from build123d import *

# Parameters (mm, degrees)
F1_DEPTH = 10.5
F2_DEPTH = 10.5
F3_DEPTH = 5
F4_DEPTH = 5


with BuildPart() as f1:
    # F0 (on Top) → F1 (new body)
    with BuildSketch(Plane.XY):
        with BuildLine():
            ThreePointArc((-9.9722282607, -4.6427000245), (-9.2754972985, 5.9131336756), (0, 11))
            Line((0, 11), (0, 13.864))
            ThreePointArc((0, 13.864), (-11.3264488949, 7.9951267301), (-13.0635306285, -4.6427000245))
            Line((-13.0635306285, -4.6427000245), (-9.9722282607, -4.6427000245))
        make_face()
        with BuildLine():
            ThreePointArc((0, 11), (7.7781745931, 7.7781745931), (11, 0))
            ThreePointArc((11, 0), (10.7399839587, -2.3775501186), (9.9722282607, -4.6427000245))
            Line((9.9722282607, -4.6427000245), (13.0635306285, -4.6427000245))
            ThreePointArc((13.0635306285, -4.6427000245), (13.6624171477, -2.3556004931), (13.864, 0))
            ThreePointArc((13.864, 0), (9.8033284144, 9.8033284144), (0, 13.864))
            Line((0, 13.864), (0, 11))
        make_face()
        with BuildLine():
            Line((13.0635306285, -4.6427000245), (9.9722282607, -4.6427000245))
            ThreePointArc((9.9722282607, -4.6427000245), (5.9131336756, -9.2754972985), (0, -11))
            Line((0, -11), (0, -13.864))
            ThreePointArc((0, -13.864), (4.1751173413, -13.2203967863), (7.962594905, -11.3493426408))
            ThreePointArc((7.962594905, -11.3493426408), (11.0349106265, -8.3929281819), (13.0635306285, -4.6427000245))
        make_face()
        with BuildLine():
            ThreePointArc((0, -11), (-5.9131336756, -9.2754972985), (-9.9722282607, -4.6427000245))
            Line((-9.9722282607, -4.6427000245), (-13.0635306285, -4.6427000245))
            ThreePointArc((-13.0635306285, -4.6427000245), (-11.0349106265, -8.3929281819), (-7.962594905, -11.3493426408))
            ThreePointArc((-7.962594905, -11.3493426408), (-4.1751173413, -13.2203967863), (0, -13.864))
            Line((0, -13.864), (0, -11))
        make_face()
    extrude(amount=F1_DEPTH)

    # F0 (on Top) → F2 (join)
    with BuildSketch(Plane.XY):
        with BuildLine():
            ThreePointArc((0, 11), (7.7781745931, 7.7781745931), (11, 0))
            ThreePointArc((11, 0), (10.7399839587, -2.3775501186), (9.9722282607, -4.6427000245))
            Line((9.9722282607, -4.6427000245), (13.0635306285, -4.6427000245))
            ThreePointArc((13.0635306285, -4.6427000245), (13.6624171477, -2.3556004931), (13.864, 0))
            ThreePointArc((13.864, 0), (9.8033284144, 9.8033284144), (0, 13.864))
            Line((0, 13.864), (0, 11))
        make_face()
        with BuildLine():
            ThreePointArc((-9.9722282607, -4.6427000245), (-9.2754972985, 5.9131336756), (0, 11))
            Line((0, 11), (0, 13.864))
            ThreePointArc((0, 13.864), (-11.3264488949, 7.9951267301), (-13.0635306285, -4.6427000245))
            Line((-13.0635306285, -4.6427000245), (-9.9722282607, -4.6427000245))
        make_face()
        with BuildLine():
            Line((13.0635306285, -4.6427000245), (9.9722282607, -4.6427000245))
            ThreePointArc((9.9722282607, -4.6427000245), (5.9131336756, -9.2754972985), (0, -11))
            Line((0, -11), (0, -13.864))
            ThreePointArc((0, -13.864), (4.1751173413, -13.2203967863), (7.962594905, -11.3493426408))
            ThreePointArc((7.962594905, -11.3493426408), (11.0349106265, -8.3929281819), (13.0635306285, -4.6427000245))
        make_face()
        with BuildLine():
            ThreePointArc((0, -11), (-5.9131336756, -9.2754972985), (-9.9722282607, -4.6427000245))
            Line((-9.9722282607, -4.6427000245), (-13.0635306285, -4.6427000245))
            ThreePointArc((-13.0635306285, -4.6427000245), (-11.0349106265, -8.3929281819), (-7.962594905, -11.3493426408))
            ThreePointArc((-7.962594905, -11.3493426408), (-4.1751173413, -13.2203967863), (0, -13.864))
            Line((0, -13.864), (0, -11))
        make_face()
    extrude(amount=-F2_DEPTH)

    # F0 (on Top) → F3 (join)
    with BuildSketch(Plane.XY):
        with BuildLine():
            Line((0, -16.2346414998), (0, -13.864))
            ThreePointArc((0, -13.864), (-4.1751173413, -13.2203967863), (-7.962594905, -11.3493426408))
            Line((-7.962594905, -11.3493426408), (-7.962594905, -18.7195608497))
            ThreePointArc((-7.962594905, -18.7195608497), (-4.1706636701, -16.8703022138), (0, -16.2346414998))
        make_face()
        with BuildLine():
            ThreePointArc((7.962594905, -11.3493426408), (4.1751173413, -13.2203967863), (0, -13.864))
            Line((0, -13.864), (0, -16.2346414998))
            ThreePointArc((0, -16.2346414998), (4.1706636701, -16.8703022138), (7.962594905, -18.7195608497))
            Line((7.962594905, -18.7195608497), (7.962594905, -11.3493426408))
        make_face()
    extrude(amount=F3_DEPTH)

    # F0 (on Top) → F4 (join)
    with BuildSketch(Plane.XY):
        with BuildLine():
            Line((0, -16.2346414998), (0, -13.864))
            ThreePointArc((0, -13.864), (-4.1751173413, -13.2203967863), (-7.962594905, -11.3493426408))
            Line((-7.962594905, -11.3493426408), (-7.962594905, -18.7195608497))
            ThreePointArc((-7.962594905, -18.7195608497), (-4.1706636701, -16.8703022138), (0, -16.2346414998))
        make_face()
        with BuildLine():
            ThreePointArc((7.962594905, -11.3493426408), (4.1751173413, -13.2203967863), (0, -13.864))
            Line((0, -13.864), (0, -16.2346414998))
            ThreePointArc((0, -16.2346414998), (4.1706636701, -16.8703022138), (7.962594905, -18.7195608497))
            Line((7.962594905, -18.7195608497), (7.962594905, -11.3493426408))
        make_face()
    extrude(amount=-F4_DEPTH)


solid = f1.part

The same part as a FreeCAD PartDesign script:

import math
import FreeCAD as App
import Part
import Sketcher

V = App.Vector
Q = App.Units.Quantity

doc = App.newDocument("Part")
body = doc.addObject("PartDesign::Body", "Body")

sketch1 = body.newObject("Sketcher::SketchObject", "Sketch")
sketch1.AttachmentSupport = (doc.getObject("XY_Plane"), [""])
sketch1.MapMode = "FlatFace"
sketch1.addGeometry([
    Part.ArcOfCircle(Part.Circle(V(0, 0, 0), V(0, 0, 1), 13.9), math.radians(-90), math.radians(-55)),
    Part.ArcOfCircle(Part.Circle(V(0, 0, 0), V(0, 0, 1), 13.9), math.radians(-55), math.radians(-20)),
    Part.ArcOfCircle(Part.Circle(V(0, 0, 0), V(0, 0, 1), 13.9), math.radians(-19.56), math.radians(0)),
    Part.ArcOfCircle(Part.Circle(V(0, 0, 0), V(0, 0, 1), 13.9), math.radians(0), math.radians(90)),
    Part.ArcOfCircle(Part.Circle(V(0, 0, 0), V(0, 0, 1), 13.9), math.radians(90), math.radians(200)),
    Part.ArcOfCircle(Part.Circle(V(0, 0, 0), V(0, 0, 1), 13.9), math.radians(-160), math.radians(-125)),
    Part.ArcOfCircle(Part.Circle(V(0, 0, 0), V(0, 0, 1), 13.9), math.radians(-125), math.radians(-90)),
    Part.ArcOfCircle(Part.Circle(V(0, 0, 0), V(0, 0, 1), 11), math.radians(90), math.radians(205)),
    Part.ArcOfCircle(Part.Circle(V(0, 0, 0), V(0, 0, 1), 11), math.radians(0), math.radians(90)),
    Part.ArcOfCircle(Part.Circle(V(0, 0, 0), V(0, 0, 1), 11), math.radians(-25), math.radians(0)),
    Part.ArcOfCircle(Part.Circle(V(0, 0, 0), V(0, 0, 1), 11), math.radians(-90), math.radians(-25)),
    Part.ArcOfCircle(Part.Circle(V(0, 0, 0), V(0, 0, 1), 11), math.radians(-155), math.radians(-90)),
], False)
sketch1.addConstraint([
    Sketcher.Constraint("Tangent", 0, 2, 1, 1),
    Sketcher.Constraint("Tangent", 1, 2, 2, 1),
    Sketcher.Constraint("Tangent", 2, 2, 3, 1),
    Sketcher.Constraint("Tangent", 3, 2, 4, 1),
    Sketcher.Constraint("Tangent", 4, 2, 5, 1),
    Sketcher.Constraint("Tangent", 5, 2, 6, 1),
    Sketcher.Constraint("Tangent", 6, 2, 0, 1),
    Sketcher.Constraint("Tangent", 7, 1, 8, 2),
    Sketcher.Constraint("Tangent", 8, 1, 9, 2),
    Sketcher.Constraint("Tangent", 9, 1, 10, 2),
    Sketcher.Constraint("Tangent", 10, 1, 11, 2),
    Sketcher.Constraint("Tangent", 11, 1, 7, 2),
    Sketcher.Constraint("Coincident", 0, 3, -1, 1),
    Sketcher.Constraint("Coincident", 2, 3, -1, 1),
    Sketcher.Constraint("Coincident", 4, 3, -1, 1),
    Sketcher.Constraint("Coincident", 7, 3, -1, 1),
    Sketcher.Constraint("Coincident", 9, 3, -1, 1),
    Sketcher.Constraint("PointOnObject", 2, 2, -1),
    Sketcher.Constraint("PointOnObject", 3, 2, -2),
    Sketcher.Constraint("PointOnObject", 6, 2, -2),
    Sketcher.Constraint("PointOnObject", 7, 1, -2),
    Sketcher.Constraint("PointOnObject", 8, 1, -1),
    Sketcher.Constraint("PointOnObject", 10, 1, -2),
    Sketcher.Constraint("Horizontal", 1, 2, 4, 2),
    Sketcher.Constraint("Horizontal", 0, 2, 5, 2),
    Sketcher.Constraint("Horizontal", 4, 2, 9, 1),
    Sketcher.Constraint("Horizontal", 9, 1, 11, 1),
    Sketcher.Constraint("Radius", 7, Q("11 mm")),
    Sketcher.Constraint("Radius", 0, Q("13.864 mm")),
    Sketcher.Constraint("DistanceY", 1, 2, -1, 1, Q("4.6427 mm")),
    Sketcher.Constraint("DistanceX", -1, 1, 0, 2, Q("7.962595 mm")),
])
pad1 = body.newObject("PartDesign::Pad", "Pad")
pad1.Profile = sketch1
pad1.Length = 10.5

sketch2 = body.newObject("Sketcher::SketchObject", "Sketch001")
sketch2.AttachmentSupport = (doc.getObject("XY_Plane"), [""])
sketch2.MapMode = "FlatFace"
sketch2.addGeometry([
    Part.ArcOfCircle(Part.Circle(V(0, 0, 0), V(0, 0, 1), 13.9), math.radians(-90), math.radians(-55)),
    Part.ArcOfCircle(Part.Circle(V(0, 0, 0), V(0, 0, 1), 13.9), math.radians(-55), math.radians(-20)),
    Part.ArcOfCircle(Part.Circle(V(0, 0, 0), V(0, 0, 1), 13.9), math.radians(-19.56), math.radians(0)),
    Part.ArcOfCircle(Part.Circle(V(0, 0, 0), V(0, 0, 1), 13.9), math.radians(0), math.radians(90)),
    Part.ArcOfCircle(Part.Circle(V(0, 0, 0), V(0, 0, 1), 13.9), math.radians(90), math.radians(200)),
    Part.ArcOfCircle(Part.Circle(V(0, 0, 0), V(0, 0, 1), 13.9), math.radians(-160), math.radians(-125)),
    Part.ArcOfCircle(Part.Circle(V(0, 0, 0), V(0, 0, 1), 13.9), math.radians(-125), math.radians(-90)),
    Part.ArcOfCircle(Part.Circle(V(0, 0, 0), V(0, 0, 1), 11), math.radians(0), math.radians(90)),
    Part.ArcOfCircle(Part.Circle(V(0, 0, 0), V(0, 0, 1), 11), math.radians(-25), math.radians(0)),
    Part.ArcOfCircle(Part.Circle(V(0, 0, 0), V(0, 0, 1), 11), math.radians(-90), math.radians(-25)),
    Part.ArcOfCircle(Part.Circle(V(0, 0, 0), V(0, 0, 1), 11), math.radians(-155), math.radians(-90)),
    Part.ArcOfCircle(Part.Circle(V(0, 0, 0), V(0, 0, 1), 11), math.radians(90), math.radians(205)),
], False)
sketch2.addConstraint([
    Sketcher.Constraint("Tangent", 0, 2, 1, 1),
    Sketcher.Constraint("Tangent", 1, 2, 2, 1),
    Sketcher.Constraint("Tangent", 2, 2, 3, 1),
    Sketcher.Constraint("Tangent", 3, 2, 4, 1),
    Sketcher.Constraint("Tangent", 4, 2, 5, 1),
    Sketcher.Constraint("Tangent", 5, 2, 6, 1),
    Sketcher.Constraint("Tangent", 6, 2, 0, 1),
    Sketcher.Constraint("Tangent", 7, 1, 8, 2),
    Sketcher.Constraint("Tangent", 8, 1, 9, 2),
    Sketcher.Constraint("Tangent", 9, 1, 10, 2),
    Sketcher.Constraint("Tangent", 10, 1, 11, 2),
    Sketcher.Constraint("Tangent", 11, 1, 7, 2),
    Sketcher.Constraint("Coincident", 0, 3, -1, 1),
    Sketcher.Constraint("Coincident", 2, 3, -1, 1),
    Sketcher.Constraint("Coincident", 4, 3, -1, 1),
    Sketcher.Constraint("Coincident", 7, 3, -1, 1),
    Sketcher.Constraint("Coincident", 9, 3, -1, 1),
    Sketcher.Constraint("PointOnObject", 2, 2, -1),
    Sketcher.Constraint("PointOnObject", 3, 2, -2),
    Sketcher.Constraint("PointOnObject", 6, 2, -2),
    Sketcher.Constraint("PointOnObject", 7, 1, -1),
    Sketcher.Constraint("PointOnObject", 9, 1, -2),
    Sketcher.Constraint("PointOnObject", 11, 1, -2),
    Sketcher.Constraint("Horizontal", 1, 2, 4, 2),
    Sketcher.Constraint("Horizontal", 0, 2, 5, 2),
    Sketcher.Constraint("Horizontal", 4, 2, 8, 1),
    Sketcher.Constraint("Horizontal", 8, 1, 10, 1),
    Sketcher.Constraint("Radius", 7, Q("11 mm")),
    Sketcher.Constraint("Radius", 0, Q("13.864 mm")),
    Sketcher.Constraint("DistanceY", 1, 2, -1, 1, Q("4.6427 mm")),
    Sketcher.Constraint("DistanceX", -1, 1, 0, 2, Q("7.962595 mm")),
])
pad2 = body.newObject("PartDesign::Pad", "Pad001")
pad2.Profile = sketch2
pad2.Length = 10.5
pad2.Reversed = True

sketch3 = body.newObject("Sketcher::SketchObject", "Sketch002")
sketch3.AttachmentSupport = (doc.getObject("XY_Plane"), [""])
sketch3.MapMode = "FlatFace"
sketch3.addGeometry([
    Part.ArcOfCircle(Part.Circle(V(0, 0, 0), V(0, 0, 1), 14), math.radians(-125), math.radians(-90)),
    Part.LineSegment(V(-8, -11, 0), V(-8, -19, 0)),
    Part.ArcOfCircle(Part.Circle(V(0, -30, 0), V(0, 0, 1), 14), math.radians(90), math.radians(125)),
    Part.ArcOfCircle(Part.Circle(V(0, -30, 0), V(0, 0, 1), 14), math.radians(55), math.radians(90)),
    Part.LineSegment(V(8, -19, 0), V(8, -11, 0)),
    Part.ArcOfCircle(Part.Circle(V(0, 0, 0), V(0, 0, 1), 14), math.radians(-90), math.radians(-55)),
], False)
sketch3.addConstraint([
    Sketcher.Constraint("Coincident", 0, 1, 1, 1),
    Sketcher.Constraint("Coincident", 1, 2, 2, 2),
    Sketcher.Constraint("Tangent", 2, 1, 3, 2),
    Sketcher.Constraint("Coincident", 3, 1, 4, 1),
    Sketcher.Constraint("Coincident", 4, 2, 5, 2),
    Sketcher.Constraint("Tangent", 5, 1, 0, 2),
    Sketcher.Constraint("Vertical", 1),
    Sketcher.Constraint("Vertical", 4),
    Sketcher.Constraint("Coincident", 0, 3, -1, 1),
    Sketcher.Constraint("Equal", 2, 3),
    Sketcher.Constraint("Equal", 0, 5),
    Sketcher.Constraint("Symmetric", 1, 2, 3, 1, -2),
    Sketcher.Constraint("PointOnObject", 2, 1, -2),
    Sketcher.Constraint("PointOnObject", 5, 1, -2),
    Sketcher.Constraint("Radius", 2, Q("14 mm")),
    Sketcher.Constraint("Radius", 0, Q("13.864 mm")),
    Sketcher.Constraint("DistanceY", 1, 2, 1, 1, Q("7.370218 mm")),
    Sketcher.Constraint("DistanceY", 2, 3, 0, 1, Q("18.885299 mm")),
])
pad3 = body.newObject("PartDesign::Pad", "Pad002")
pad3.Profile = sketch3
pad3.Length = 5

sketch4 = body.newObject("Sketcher::SketchObject", "Sketch003")
sketch4.AttachmentSupport = (doc.getObject("XY_Plane"), [""])
sketch4.MapMode = "FlatFace"
sketch4.addGeometry([
    Part.ArcOfCircle(Part.Circle(V(0, 0, 0), V(0, 0, 1), 14), math.radians(-125), math.radians(-90)),
    Part.LineSegment(V(-8, -11, 0), V(-8, -19, 0)),
    Part.ArcOfCircle(Part.Circle(V(0, -30, 0), V(0, 0, 1), 14), math.radians(90), math.radians(125)),
    Part.ArcOfCircle(Part.Circle(V(0, -30, 0), V(0, 0, 1), 14), math.radians(55), math.radians(90)),
    Part.LineSegment(V(8, -19, 0), V(8, -11, 0)),
    Part.ArcOfCircle(Part.Circle(V(0, 0, 0), V(0, 0, 1), 14), math.radians(-90), math.radians(-55)),
], False)
sketch4.addConstraint([
    Sketcher.Constraint("Coincident", 0, 1, 1, 1),
    Sketcher.Constraint("Coincident", 1, 2, 2, 2),
    Sketcher.Constraint("Tangent", 2, 1, 3, 2),
    Sketcher.Constraint("Coincident", 3, 1, 4, 1),
    Sketcher.Constraint("Coincident", 4, 2, 5, 2),
    Sketcher.Constraint("Tangent", 5, 1, 0, 2),
    Sketcher.Constraint("Vertical", 1),
    Sketcher.Constraint("Vertical", 4),
    Sketcher.Constraint("Coincident", 0, 3, -1, 1),
    Sketcher.Constraint("Equal", 2, 3),
    Sketcher.Constraint("Equal", 0, 5),
    Sketcher.Constraint("Symmetric", 1, 2, 3, 1, -2),
    Sketcher.Constraint("PointOnObject", 2, 1, -2),
    Sketcher.Constraint("PointOnObject", 5, 1, -2),
    Sketcher.Constraint("Radius", 2, Q("14 mm")),
    Sketcher.Constraint("Radius", 0, Q("13.864 mm")),
    Sketcher.Constraint("DistanceY", 1, 2, 1, 1, Q("7.370218 mm")),
    Sketcher.Constraint("DistanceY", 2, 3, 0, 1, Q("18.885299 mm")),
])
pad4 = body.newObject("PartDesign::Pad", "Pad003")
pad4.Profile = sketch4
pad4.Length = 5
pad4.Reversed = True

doc.recompute()
